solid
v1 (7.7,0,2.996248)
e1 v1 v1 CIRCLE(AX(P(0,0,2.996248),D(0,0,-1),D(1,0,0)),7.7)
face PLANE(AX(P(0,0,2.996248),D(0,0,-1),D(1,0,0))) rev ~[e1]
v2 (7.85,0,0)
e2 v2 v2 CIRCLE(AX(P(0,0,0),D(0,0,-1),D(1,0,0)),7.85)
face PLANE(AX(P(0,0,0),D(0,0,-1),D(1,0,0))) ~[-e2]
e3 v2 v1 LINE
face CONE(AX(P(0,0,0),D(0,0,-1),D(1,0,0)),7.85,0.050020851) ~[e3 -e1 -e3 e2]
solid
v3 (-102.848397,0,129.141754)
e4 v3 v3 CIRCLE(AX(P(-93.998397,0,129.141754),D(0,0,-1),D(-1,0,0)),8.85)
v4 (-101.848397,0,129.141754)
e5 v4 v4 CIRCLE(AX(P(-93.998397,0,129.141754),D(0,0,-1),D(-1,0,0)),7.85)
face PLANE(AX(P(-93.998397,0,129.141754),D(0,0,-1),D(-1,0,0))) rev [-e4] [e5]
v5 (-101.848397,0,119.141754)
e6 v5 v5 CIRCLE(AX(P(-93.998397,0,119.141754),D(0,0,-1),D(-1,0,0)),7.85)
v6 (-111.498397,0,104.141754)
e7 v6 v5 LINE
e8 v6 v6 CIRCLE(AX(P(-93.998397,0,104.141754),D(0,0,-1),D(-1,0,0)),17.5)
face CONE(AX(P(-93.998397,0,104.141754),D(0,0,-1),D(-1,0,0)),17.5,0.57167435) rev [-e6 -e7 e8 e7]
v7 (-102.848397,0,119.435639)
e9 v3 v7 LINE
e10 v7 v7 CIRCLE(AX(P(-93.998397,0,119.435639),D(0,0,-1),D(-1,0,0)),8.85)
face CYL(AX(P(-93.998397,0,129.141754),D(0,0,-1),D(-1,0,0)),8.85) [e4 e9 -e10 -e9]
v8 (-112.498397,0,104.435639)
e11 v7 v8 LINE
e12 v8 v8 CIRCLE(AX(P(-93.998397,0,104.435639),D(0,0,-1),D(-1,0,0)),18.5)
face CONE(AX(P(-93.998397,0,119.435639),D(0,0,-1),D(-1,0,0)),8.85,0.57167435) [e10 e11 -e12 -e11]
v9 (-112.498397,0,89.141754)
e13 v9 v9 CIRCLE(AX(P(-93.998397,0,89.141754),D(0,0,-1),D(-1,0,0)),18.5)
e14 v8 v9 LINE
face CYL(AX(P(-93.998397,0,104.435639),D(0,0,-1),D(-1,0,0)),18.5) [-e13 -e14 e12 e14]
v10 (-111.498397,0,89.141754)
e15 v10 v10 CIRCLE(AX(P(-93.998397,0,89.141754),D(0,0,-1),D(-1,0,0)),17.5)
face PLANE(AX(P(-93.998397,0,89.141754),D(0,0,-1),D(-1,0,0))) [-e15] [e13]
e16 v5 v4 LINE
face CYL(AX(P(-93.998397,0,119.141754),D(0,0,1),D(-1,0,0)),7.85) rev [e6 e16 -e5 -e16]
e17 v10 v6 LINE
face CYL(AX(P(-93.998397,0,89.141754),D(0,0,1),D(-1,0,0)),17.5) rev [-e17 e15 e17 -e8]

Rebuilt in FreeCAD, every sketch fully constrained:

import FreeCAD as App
import Part
import Sketcher
from FreeCAD import Vector

doc = App.newDocument("Part")
params = doc.addObject("Spreadsheet::Sheet", "Params")
for row, (alias, value) in enumerate([
    ("sketch1_length", "3 mm"),
    ("sketch1_width", "7.7 mm"),
    ("sketch1_width2", "7.85 mm"),
    ("revolution_angle", "360 deg"),
    ("sketch2_width", "1 mm"),
    ("sketch2_height", "10 mm"),
    ("sketch2_height2", "15 mm"),
    ("sketch2_height3", "40 mm"),
    ("revolution2_angle", "360 deg"),
], start=1):
    params.set(f"A{row}", alias)
    params.set(f"B{row}", "=" + value)
    params.setAlias(f"B{row}", alias)

body = doc.addObject("PartDesign::Body", "Body")

# Sketch on XZ plane
sketch1 = body.newObject("Sketcher::SketchObject", "Sketch")
sketch1.AttachmentSupport = (doc.getObject("XZ_Plane"), [""])
sketch1.MapMode = "FlatFace"
sketch1.addGeometry([
    Part.LineSegment(Vector(7.8, 0, 0), Vector(7.7, 3, 0)),
    Part.LineSegment(Vector(7.7, 3, 0), Vector(0, 3, 0)),
    Part.LineSegment(Vector(0, 3, 0), Vector(0, 0, 0)),
    Part.LineSegment(Vector(0, 0, 0), Vector(7.8, 0, 0)),
], False)
sketch1.addConstraint([
    Sketcher.Constraint("Coincident", 0, 2, 1, 1),
    Sketcher.Constraint("Coincident", 1, 2, 2, 1),
    Sketcher.Constraint("Coincident", 2, 2, 3, 1),
    Sketcher.Constraint("Coincident", 3, 2, 0, 1),
    Sketcher.Constraint("Horizontal", 1),
    Sketcher.Constraint("Vertical", 2),
    Sketcher.Constraint("Horizontal", 3),
    Sketcher.Constraint("Coincident", 2, 2, -1, 1),
    Sketcher.Constraint("Distance", 0, 3.0),
    Sketcher.Constraint("DistanceX", 1, 2, 1, 1, 7.7),
    Sketcher.Constraint("DistanceX", 3, 1, 3, 2, 7.85),
])
sketch1.setExpression("Constraints[8]", "Params.sketch1_length")
sketch1.setExpression("Constraints[9]", "Params.sketch1_width")
sketch1.setExpression("Constraints[10]", "Params.sketch1_width2")
revolution = body.newObject("PartDesign::Revolution", "Revolution")
revolution.Profile = sketch1
revolution.ReferenceAxis = (sketch1, ["V_Axis"])
revolution.setExpression("Angle", "Params.revolution_angle")
body2 = doc.addObject("PartDesign::Body", "Body001")

# Sketch on XZ plane
sketch2 = body2.newObject("Sketcher::SketchObject", "Sketch001")
sketch2.AttachmentSupport = (doc.getObject("XZ_Plane001"), [""])
sketch2.MapMode = "FlatFace"
sketch2.addGeometry([
    Part.LineSegment(Vector(-101.8, 119.1, 0), Vector(-101.8, 129.1, 0)),  # 0
    Part.LineSegment(Vector(-101.8, 129.1, 0), Vector(-102.8, 129.1, 0)),  # 1
    Part.LineSegment(Vector(-102.8, 129.1, 0), Vector(-102.8, 119.4, 0)),  # 2
    Part.LineSegment(Vector(-102.8, 119.4, 0), Vector(-112.5, 104.4, 0)),  # 3
    Part.LineSegment(Vector(-112.5, 104.4, 0), Vector(-112.5, 89.1, 0)),  # 4
    Part.LineSegment(Vector(-112.5, 89.1, 0), Vector(-111.5, 89.1, 0)),  # 5
    Part.LineSegment(Vector(-111.5, 89.1, 0), Vector(-111.5, 104.1, 0)),  # 6
    Part.LineSegment(Vector(-111.5, 104.1, 0), Vector(-101.8, 119.1, 0)),  # 7
], False)
sketch2.addGeometry(Part.LineSegment(Vector(-94, 129.1, 0), Vector(-94, 89.1, 0)), True)  # axis
sketch2.addConstraint([
    Sketcher.Constraint("Coincident", 0, 2, 1, 1),
    Sketcher.Constraint("Coincident", 1, 2, 2, 1),
    Sketcher.Constraint("Coincident", 2, 2, 3, 1),
    Sketcher.Constraint("Coincident", 3, 2, 4, 1),
    Sketcher.Constraint("Coincident", 4, 2, 5, 1),
    Sketcher.Constraint("Coincident", 5, 2, 6, 1),
    Sketcher.Constraint("Coincident", 6, 2, 7, 1),
    Sketcher.Constraint("Coincident", 7, 2, 0, 1),
    Sketcher.Constraint("Vertical", 0),
    Sketcher.Constraint("Horizontal", 1),
    Sketcher.Constraint("Vertical", 2),
    Sketcher.Constraint("Vertical", 4),
    Sketcher.Constraint("Horizontal", 5),
    Sketcher.Constraint("Vertical", 6),
    Sketcher.Constraint("Vertical", 8),
    Sketcher.Constraint("Parallel", 3, 7),
    Sketcher.Constraint("Horizontal", 1, 2, 8, 1),
    Sketcher.Constraint("Horizontal", 5, 2, 8, 2),
    Sketcher.Constraint("Equal", 1, 5),
    Sketcher.Constraint("DistanceX", 1, 2, 1, 1, 1.0),
    Sketcher.Constraint("DistanceY", 0, 1, 0, 2, 10.0),
    Sketcher.Constraint("DistanceY", 6, 1, 6, 2, 15.0),
    Sketcher.Constraint("DistanceY", 8, 2, 8, 1, 40.0),
    Sketcher.Constraint("DistanceX", 6, 2, 8, 1, 17.5),
    Sketcher.Constraint("DistanceX", 3, 2, 2, 2, 9.65),
    Sketcher.Constraint("DistanceY", 2, 2, 2, 1, 9.706115),
    Sketcher.Constraint("DistanceY", -1, 1, 2, 2, 119.435639),
    Sketcher.Constraint("DistanceX", 0, 2, -1, 1, 101.848397),
])
sketch2.setExpression("Constraints[19]", "Params.sketch2_width")
sketch2.setExpression("Constraints[20]", "Params.sketch2_height")
sketch2.setExpression("Constraints[21]", "Params.sketch2_height2")
sketch2.setExpression("Constraints[22]", "Params.sketch2_height3")
revolution2 = body2.newObject("PartDesign::Revolution", "Revolution001")
revolution2.Profile = sketch2
revolution2.ReferenceAxis = (sketch2, ["Axis0"])
revolution2.setExpression("Angle", "Params.revolution2_angle")

doc.recompute()
